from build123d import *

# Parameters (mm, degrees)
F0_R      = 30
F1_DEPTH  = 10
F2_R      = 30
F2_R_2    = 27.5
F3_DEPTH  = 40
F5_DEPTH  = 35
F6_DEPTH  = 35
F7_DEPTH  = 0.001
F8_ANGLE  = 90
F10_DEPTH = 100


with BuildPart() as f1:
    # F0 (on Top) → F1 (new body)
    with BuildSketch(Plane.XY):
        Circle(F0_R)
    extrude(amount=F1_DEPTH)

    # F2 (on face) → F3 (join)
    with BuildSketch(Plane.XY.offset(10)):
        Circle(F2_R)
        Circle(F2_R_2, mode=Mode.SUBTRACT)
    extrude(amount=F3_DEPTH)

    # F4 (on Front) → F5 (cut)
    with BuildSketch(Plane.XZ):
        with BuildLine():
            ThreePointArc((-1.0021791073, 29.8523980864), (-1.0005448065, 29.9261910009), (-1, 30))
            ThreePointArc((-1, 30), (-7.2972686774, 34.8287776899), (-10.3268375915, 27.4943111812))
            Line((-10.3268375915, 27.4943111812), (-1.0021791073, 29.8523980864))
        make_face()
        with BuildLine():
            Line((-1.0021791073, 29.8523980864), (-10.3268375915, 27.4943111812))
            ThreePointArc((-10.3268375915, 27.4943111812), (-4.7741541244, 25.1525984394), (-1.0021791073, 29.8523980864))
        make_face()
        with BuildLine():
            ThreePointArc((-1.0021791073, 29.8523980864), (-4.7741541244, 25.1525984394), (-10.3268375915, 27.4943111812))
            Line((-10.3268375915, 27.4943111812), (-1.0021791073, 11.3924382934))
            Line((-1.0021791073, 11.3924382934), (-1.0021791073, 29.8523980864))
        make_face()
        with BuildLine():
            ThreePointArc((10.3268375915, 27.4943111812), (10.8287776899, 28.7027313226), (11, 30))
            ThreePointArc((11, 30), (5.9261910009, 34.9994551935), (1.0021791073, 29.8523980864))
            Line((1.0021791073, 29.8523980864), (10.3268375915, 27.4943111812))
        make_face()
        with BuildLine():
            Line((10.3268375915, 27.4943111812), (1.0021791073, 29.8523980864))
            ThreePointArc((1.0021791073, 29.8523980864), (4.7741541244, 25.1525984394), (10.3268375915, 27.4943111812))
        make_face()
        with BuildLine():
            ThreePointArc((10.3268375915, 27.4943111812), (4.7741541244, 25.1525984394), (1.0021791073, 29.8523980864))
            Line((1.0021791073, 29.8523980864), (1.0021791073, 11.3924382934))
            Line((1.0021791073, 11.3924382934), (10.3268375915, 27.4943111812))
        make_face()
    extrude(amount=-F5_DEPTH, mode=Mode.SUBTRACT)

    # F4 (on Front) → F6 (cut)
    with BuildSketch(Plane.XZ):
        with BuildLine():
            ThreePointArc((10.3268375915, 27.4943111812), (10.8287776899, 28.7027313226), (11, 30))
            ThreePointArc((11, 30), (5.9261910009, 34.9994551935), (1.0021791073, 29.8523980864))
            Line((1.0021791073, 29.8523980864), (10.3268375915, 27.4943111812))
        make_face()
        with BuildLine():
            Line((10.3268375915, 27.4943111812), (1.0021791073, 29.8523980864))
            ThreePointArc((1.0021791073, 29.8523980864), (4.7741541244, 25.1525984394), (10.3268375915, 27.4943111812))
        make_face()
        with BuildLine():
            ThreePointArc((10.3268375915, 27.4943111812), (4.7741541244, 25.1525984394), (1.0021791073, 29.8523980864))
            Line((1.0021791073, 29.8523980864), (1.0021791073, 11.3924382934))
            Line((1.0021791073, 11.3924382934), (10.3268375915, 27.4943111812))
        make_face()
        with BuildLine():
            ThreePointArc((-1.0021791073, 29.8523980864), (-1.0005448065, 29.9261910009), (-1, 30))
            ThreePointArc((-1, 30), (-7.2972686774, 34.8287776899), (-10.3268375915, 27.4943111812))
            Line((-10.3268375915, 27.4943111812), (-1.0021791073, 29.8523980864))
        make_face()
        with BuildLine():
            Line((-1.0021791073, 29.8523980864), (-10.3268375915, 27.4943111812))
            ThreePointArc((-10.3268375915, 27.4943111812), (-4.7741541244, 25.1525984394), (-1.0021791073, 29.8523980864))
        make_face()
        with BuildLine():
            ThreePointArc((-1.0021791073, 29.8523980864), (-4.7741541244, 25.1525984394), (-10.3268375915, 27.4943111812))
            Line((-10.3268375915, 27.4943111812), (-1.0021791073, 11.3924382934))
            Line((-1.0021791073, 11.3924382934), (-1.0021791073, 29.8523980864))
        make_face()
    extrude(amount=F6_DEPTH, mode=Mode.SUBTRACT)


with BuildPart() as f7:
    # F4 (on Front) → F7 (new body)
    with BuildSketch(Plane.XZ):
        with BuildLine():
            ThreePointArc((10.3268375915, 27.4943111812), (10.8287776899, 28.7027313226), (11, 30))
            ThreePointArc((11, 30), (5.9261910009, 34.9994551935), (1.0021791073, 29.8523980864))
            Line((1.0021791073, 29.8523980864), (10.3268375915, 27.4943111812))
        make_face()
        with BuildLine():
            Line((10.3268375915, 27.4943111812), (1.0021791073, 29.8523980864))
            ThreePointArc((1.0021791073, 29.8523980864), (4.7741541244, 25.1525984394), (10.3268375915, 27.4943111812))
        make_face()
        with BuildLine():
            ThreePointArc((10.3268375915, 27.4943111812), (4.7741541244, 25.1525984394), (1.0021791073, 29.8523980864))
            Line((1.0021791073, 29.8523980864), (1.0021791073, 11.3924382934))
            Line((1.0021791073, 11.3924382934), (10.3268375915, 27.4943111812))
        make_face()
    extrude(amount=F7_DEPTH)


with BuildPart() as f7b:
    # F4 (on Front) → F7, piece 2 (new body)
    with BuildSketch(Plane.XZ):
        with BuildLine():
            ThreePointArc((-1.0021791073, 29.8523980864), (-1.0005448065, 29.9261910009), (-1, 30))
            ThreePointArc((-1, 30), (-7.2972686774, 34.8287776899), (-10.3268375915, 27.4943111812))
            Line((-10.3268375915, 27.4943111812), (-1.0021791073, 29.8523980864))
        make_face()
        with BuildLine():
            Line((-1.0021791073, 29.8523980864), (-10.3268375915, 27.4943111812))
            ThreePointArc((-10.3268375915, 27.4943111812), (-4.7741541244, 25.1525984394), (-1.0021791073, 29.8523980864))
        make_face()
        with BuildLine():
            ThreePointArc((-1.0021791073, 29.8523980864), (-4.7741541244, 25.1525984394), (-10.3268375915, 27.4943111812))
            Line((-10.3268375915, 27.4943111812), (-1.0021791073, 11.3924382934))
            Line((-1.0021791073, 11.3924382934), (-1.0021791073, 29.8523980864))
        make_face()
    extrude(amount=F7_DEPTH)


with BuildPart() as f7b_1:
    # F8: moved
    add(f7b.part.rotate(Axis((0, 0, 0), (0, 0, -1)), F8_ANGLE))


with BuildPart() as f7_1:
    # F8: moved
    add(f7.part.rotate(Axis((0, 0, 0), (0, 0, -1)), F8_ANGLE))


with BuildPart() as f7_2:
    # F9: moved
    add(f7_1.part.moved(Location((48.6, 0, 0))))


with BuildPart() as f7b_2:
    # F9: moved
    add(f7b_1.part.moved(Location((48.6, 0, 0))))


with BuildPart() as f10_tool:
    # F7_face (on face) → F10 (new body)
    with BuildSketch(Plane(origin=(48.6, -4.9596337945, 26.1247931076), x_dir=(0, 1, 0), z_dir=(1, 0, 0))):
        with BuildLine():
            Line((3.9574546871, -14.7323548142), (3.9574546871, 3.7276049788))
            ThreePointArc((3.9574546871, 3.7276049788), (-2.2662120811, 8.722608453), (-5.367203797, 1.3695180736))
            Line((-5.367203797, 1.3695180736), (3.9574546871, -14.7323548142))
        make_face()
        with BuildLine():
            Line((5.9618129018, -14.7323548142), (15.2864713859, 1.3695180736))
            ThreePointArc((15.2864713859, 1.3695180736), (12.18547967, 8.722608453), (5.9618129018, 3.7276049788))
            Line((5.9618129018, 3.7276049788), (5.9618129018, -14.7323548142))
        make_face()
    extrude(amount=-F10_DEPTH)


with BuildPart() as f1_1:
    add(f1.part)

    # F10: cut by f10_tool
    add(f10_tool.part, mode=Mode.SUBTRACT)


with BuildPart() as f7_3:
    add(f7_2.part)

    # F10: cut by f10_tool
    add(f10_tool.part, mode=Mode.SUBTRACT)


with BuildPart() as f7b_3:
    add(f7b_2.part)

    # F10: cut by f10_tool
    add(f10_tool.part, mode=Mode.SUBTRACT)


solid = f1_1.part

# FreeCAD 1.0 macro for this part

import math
import FreeCAD as App
import Part
import Sketcher
from FreeCAD import Vector
Q = App.Units.Quantity

doc = App.newDocument("Part")
body = doc.addObject("PartDesign::Body", "Body")

# Sketch on XY plane
sketch1 = body.newObject("Sketcher::SketchObject", "Sketch")
sketch1.AttachmentSupport = (doc.getObject("XY_Plane"), [""])
sketch1.MapMode = "FlatFace"
sketch1.addGeometry(Part.Circle(Vector(0, 0, 0), Vector(0, 0, 1), 30), False)
sketch1.addConstraint(Sketcher.Constraint("Coincident", 0, 3, -1, 1))
sketch1.addConstraint(Sketcher.Constraint("Diameter", 0, Q("60 mm")))
pad1 = body.newObject("PartDesign::Pad", "Pad")
pad1.Profile = sketch1
pad1.Length = 10

# Sketch on XY plane
sketch2 = body.newObject("Sketcher::SketchObject", "Sketch001")
sketch2.AttachmentSupport = (doc.getObject("XY_Plane"), [""])
sketch2.MapMode = "FlatFace"
sketch2.AttachmentOffset = App.Placement(Vector(0, 0, 10), App.Rotation())
sketch2.addGeometry(Part.Circle(Vector(0, 0, 0), Vector(0, 0, 1), 30), False)
sketch2.addGeometry(Part.Circle(Vector(0, 0, 0), Vector(0, 0, 1), 28), False)
sketch2.addConstraint(Sketcher.Constraint("Coincident", 0, 3, -1, 1))
sketch2.addConstraint(Sketcher.Constraint("Coincident", 1, 3, -1, 1))
sketch2.addConstraint(Sketcher.Constraint("Diameter", 0, Q("60 mm")))
sketch2.addConstraint(Sketcher.Constraint("Diameter", 1, Q("55 mm")))
pad2 = body.newObject("PartDesign::Pad", "Pad001")
pad2.Profile = sketch2
pad2.Length = 40

# Sketch on XZ plane
sketch3 = body.newObject("Sketcher::SketchObject", "Sketch002")
sketch3.AttachmentSupport = (doc.getObject("XZ_Plane"), [""])
sketch3.MapMode = "FlatFace"
sketch3.addGeometry(Part.ArcOfCircle(Part.Circle(Vector(-6, 30, 0), Vector(0, 0, 1), 5), math.radians(-1.69), math.radians(0)), False)
sketch3.addGeometry(Part.ArcOfCircle(Part.Circle(Vector(-6, 30, 0), Vector(0, 0, 1), 5), math.radians(0), math.radians(210)), False)
sketch3.addGeometry(Part.LineSegment(Vector(-10.33, 27.49, 0), Vector(-1, 11.39, 0)), False)
sketch3.addGeometry(Part.LineSegment(Vector(-1, 11.39, 0), Vector(-1, 29.85, 0)), False)
sketch3.addGeometry(Part.ArcOfCircle(Part.Circle(Vector(6, 30, 0), Vector(0, 0, 1), 5), math.radians(-30), math.radians(0)), False)
sketch3.addGeometry(Part.ArcOfCircle(Part.Circle(Vector(6, 30, 0), Vector(0, 0, 1), 5), math.radians(0), math.radians(182)), False)
sketch3.addGeometry(Part.LineSegment(Vector(1, 29.85, 0), Vector(1, 11.39, 0)), False)
sketch3.addGeometry(Part.LineSegment(Vector(1, 11.39, 0), Vector(10.33, 27.49, 0)), False)
sketch3.addConstraint(Sketcher.Constraint("Tangent", 0, 2, 1, 1))
sketch3.addConstraint(Sketcher.Constraint("Tangent", 1, 2, 2, 1))
sketch3.addConstraint(Sketcher.Constraint("Coincident", 2, 2, 3, 1))
sketch3.addConstraint(Sketcher.Constraint("Coincident", 3, 2, 0, 1))
sketch3.addConstraint(Sketcher.Constraint("Tangent", 4, 2, 5, 1))
sketch3.addConstraint(Sketcher.Constraint("Coincident", 5, 2, 6, 1))
sketch3.addConstraint(Sketcher.Constraint("Coincident", 6, 2, 7, 1))
sketch3.addConstraint(Sketcher.Constraint("Tangent", 7, 2, 4, 1))
sketch3.addConstraint(Sketcher.Constraint("Vertical", 3))
sketch3.addConstraint(Sketcher.Constraint("Vertical", 6))
sketch3.addConstraint(Sketcher.Constraint("Equal", 0, 1))
sketch3.addConstraint(Sketcher.Constraint("Equal", 1, 4))
sketch3.addConstraint(Sketcher.Constraint("Equal", 4, 5))
sketch3.addConstraint(Sketcher.Constraint("Symmetric", 0, 3, 4, 3, -2))
sketch3.addConstraint(Sketcher.Constraint("Symmetric", 2, 2, 6, 2, -2))
sketch3.addConstraint(Sketcher.Constraint("Horizontal", 5, 3, 0, 2))
sketch3.addConstraint(Sketcher.Constraint("Horizontal", 0, 2, 4, 2))
sketch3.addConstraint(Sketcher.Constraint("Radius", 0, Q("5 mm")))
sketch3.addConstraint(Sketcher.Constraint("DistanceX", 0, 3, -1, 1, Q("6 mm")))
sketch3.addConstraint(Sketcher.Constraint("DistanceY", -1, 1, 0, 3, Q("30 mm")))
sketch3.addConstraint(Sketcher.Constraint("DistanceY", 3, 1, 3, 2, Q("18.45996 mm")))
sketch3.addConstraint(Sketcher.Constraint("DistanceY", -1, 1, 3, 2, Q("29.852398 mm")))
pocket1 = body.newObject("PartDesign::Pocket", "Pocket")
pocket1.Profile = sketch3
pocket1.Length = 35

# Sketch on XZ plane
sketch4 = body.newObject("Sketcher::SketchObject", "Sketch003")
sketch4.AttachmentSupport = (doc.getObject("XZ_Plane"), [""])
sketch4.MapMode = "FlatFace"
sketch4.addGeometry(Part.ArcOfCircle(Part.Circle(Vector(6, 30, 0), Vector(0, 0, 1), 5), math.radians(-30), math.radians(0)), False)
sketch4.addGeometry(Part.ArcOfCircle(Part.Circle(Vector(6, 30, 0), Vector(0, 0, 1), 5), math.radians(0), math.radians(182)), False)
sketch4.addGeometry(Part.LineSegment(Vector(1, 29.85, 0), Vector(1, 11.39, 0)), False)
sketch4.addGeometry(Part.LineSegment(Vector(1, 11.39, 0), Vector(10.33, 27.49, 0)), False)
sketch4.addGeometry(Part.ArcOfCircle(Part.Circle(Vector(-6, 30, 0), Vector(0, 0, 1), 5), math.radians(-1.69), math.radians(0)), False)
sketch4.addGeometry(Part.ArcOfCircle(Part.Circle(Vector(-6, 30, 0), Vector(0, 0, 1), 5), math.radians(0), math.radians(210)), False)
sketch4.addGeometry(Part.LineSegment(Vector(-10.33, 27.49, 0), Vector(-1, 11.39, 0)), False)
sketch4.addGeometry(Part.LineSegment(Vector(-1, 11.39, 0), Vector(-1, 29.85, 0)), False)
sketch4.addConstraint(Sketcher.Constraint("Tangent", 0, 2, 1, 1))
sketch4.addConstraint(Sketcher.Constraint("Coincident", 1, 2, 2, 1))
sketch4.addConstraint(Sketcher.Constraint("Coincident", 2, 2, 3, 1))
sketch4.addConstraint(Sketcher.Constraint("Tangent", 3, 2, 0, 1))
sketch4.addConstraint(Sketcher.Constraint("Tangent", 4, 2, 5, 1))
sketch4.addConstraint(Sketcher.Constraint("Tangent", 5, 2, 6, 1))
sketch4.addConstraint(Sketcher.Constraint("Coincident", 6, 2, 7, 1))
sketch4.addConstraint(Sketcher.Constraint("Coincident", 7, 2, 4, 1))
sketch4.addConstraint(Sketcher.Constraint("Vertical", 2))
sketch4.addConstraint(Sketcher.Constraint("Vertical", 7))
sketch4.addConstraint(Sketcher.Constraint("Equal", 0, 1))
sketch4.addConstraint(Sketcher.Constraint("Equal", 1, 4))
sketch4.addConstraint(Sketcher.Constraint("Equal", 4, 5))
sketch4.addConstraint(Sketcher.Constraint("Symmetric", 0, 3, 4, 3, -2))
sketch4.addConstraint(Sketcher.Constraint("Symmetric", 2, 2, 6, 2, -2))
sketch4.addConstraint(Sketcher.Constraint("Horizontal", 5, 3, 0, 2))
sketch4.addConstraint(Sketcher.Constraint("Horizontal", 0, 2, 4, 2))
sketch4.addConstraint(Sketcher.Constraint("Radius", 0, Q("5 mm")))
sketch4.addConstraint(Sketcher.Constraint("DistanceX", -1, 1, 0, 3, Q("6 mm")))
sketch4.addConstraint(Sketcher.Constraint("DistanceY", -1, 1, 0, 3, Q("30 mm")))
sketch4.addConstraint(Sketcher.Constraint("DistanceY", 2, 2, 2, 1, Q("18.45996 mm")))
sketch4.addConstraint(Sketcher.Constraint("DistanceY", -1, 1, 1, 2, Q("29.852398 mm")))
pocket2 = body.newObject("PartDesign::Pocket", "Pocket001")
pocket2.Profile = sketch4
pocket2.Length = 35
pocket2.Reversed = True
body2 = doc.addObject("PartDesign::Body", "Body001")

# Sketch on XZ plane
sketch5 = body2.newObject("Sketcher::SketchObject", "Sketch004")
sketch5.AttachmentSupport = (doc.getObject("XZ_Plane001"), [""])
sketch5.MapMode = "FlatFace"
sketch5.addGeometry(Part.ArcOfCircle(Part.Circle(Vector(6, 30, 0), Vector(0, 0, 1), 5), math.radians(-30), math.radians(0)), False)
sketch5.addGeometry(Part.ArcOfCircle(Part.Circle(Vector(6, 30, 0), Vector(0, 0, 1), 5), math.radians(0), math.radians(182)), False)
sketch5.addGeometry(Part.LineSegment(Vector(1, 29.9, 0), Vector(1, 11.4, 0)), False)
sketch5.addGeometry(Part.LineSegment(Vector(1, 11.4, 0), Vector(10.3, 27.5, 0)), False)
sketch5.addConstraint(Sketcher.Constraint("Tangent", 0, 2, 1, 1))
sketch5.addConstraint(Sketcher.Constraint("Coincident", 1, 2, 2, 1))
sketch5.addConstraint(Sketcher.Constraint("Coincident", 2, 2, 3, 1))
sketch5.addConstraint(Sketcher.Constraint("Tangent", 3, 2, 0, 1))
sketch5.addConstraint(Sketcher.Constraint("Vertical", 2))
sketch5.addConstraint(Sketcher.Constraint("Equal", 0, 1))
sketch5.addConstraint(Sketcher.Constraint("Horizontal", 1, 3, 0, 2))
sketch5.addConstraint(Sketcher.Constraint("Radius", 0, Q("5 mm")))
sketch5.addConstraint(Sketcher.Constraint("DistanceX", -1, 1, 0, 3, Q("6 mm")))
sketch5.addConstraint(Sketcher.Constraint("DistanceY", -1, 1, 0, 3, Q("30 mm")))
sketch5.addConstraint(Sketcher.Constraint("DistanceY", 2, 2, 2, 1, Q("18.45996 mm")))
sketch5.addConstraint(Sketcher.Constraint("DistanceY", -1, 1, 1, 2, Q("29.852398 mm")))
pad3 = body2.newObject("PartDesign::Pad", "Pad002")
pad3.Profile = sketch5
pad3.Length = 0.001
body3 = doc.addObject("PartDesign::Body", "Body002")

# Sketch on XZ plane
sketch6 = body3.newObject("Sketcher::SketchObject", "Sketch005")
sketch6.AttachmentSupport = (doc.getObject("XZ_Plane002"), [""])
sketch6.MapMode = "FlatFace"
sketch6.addGeometry(Part.ArcOfCircle(Part.Circle(Vector(-6, 30, 0), Vector(0, 0, 1), 5), math.radians(-1.69), math.radians(0)), False)
sketch6.addGeometry(Part.ArcOfCircle(Part.Circle(Vector(-6, 30, 0), Vector(0, 0, 1), 5), math.radians(0), math.radians(210)), False)
sketch6.addGeometry(Part.LineSegment(Vector(-10.33, 27.49, 0), Vector(-1, 11.39, 0)), False)
sketch6.addGeometry(Part.LineSegment(Vector(-1, 11.39, 0), Vector(-1, 29.85, 0)), False)
sketch6.addConstraint(Sketcher.Constraint("Tangent", 0, 2, 1, 1))
sketch6.addConstraint(Sketcher.Constraint("Tangent", 1, 2, 2, 1))
sketch6.addConstraint(Sketcher.Constraint("Coincident", 2, 2, 3, 1))
sketch6.addConstraint(Sketcher.Constraint("Coincident", 3, 2, 0, 1))
sketch6.addConstraint(Sketcher.Constraint("Vertical", 3))
sketch6.addConstraint(Sketcher.Constraint("Equal", 0, 1))
sketch6.addConstraint(Sketcher.Constraint("Horizontal", 1, 3, 0, 2))
sketch6.addConstraint(Sketcher.Constraint("Radius", 0, Q("5 mm")))
sketch6.addConstraint(Sketcher.Constraint("DistanceX", 0, 3, -1, 1, Q("6 mm")))
sketch6.addConstraint(Sketcher.Constraint("DistanceY", -1, 1, 0, 3, Q("30 mm")))
sketch6.addConstraint(Sketcher.Constraint("DistanceY", 3, 1, 3, 2, Q("18.45996 mm")))
sketch6.addConstraint(Sketcher.Constraint("DistanceY", -1, 1, 3, 2, Q("29.852398 mm")))
pad4 = body3.newObject("PartDesign::Pad", "Pad003")
pad4.Profile = sketch6
pad4.Length = 0.001
body4 = doc.addObject("PartDesign::Body", "Body003")
doc.recompute()

body3.Placement = App.Placement(Vector(0, 0, 0), App.Rotation(Vector(0, 0, -1), 90))
boolean = body4.newObject("PartDesign::Boolean", "Boolean")
boolean.Type = "Fuse"
boolean.addObjects([body3])
body5 = doc.addObject("PartDesign::Body", "Body004")
doc.recompute()

body2.Placement = App.Placement(Vector(0, 0, 0), App.Rotation(Vector(0, 0, -1), 90))
boolean2 = body5.newObject("PartDesign::Boolean", "Boolean001")
boolean2.Type = "Fuse"
boolean2.addObjects([body2])
body6 = doc.addObject("PartDesign::Body", "Body005")
doc.recompute()

body5.Placement = App.Placement(Vector(48.6, 0, 0), App.Rotation(Vector(0, 0, 1), 0))
boolean3 = body6.newObject("PartDesign::Boolean", "Boolean002")
boolean3.Type = "Fuse"
boolean3.addObjects([body5])
body7 = doc.addObject("PartDesign::Body", "Body006")
doc.recompute()

body4.Placement = App.Placement(Vector(48.6, 0, 0), App.Rotation(Vector(0, 0, 1), 0))
boolean4 = body7.newObject("PartDesign::Boolean", "Boolean003")
boolean4.Type = "Fuse"
boolean4.addObjects([body4])
body8 = doc.addObject("PartDesign::Body", "Body007")
body8.AllowCompound = True

# Sketch on YZ plane
sketch7 = body8.newObject("Sketcher::SketchObject", "Sketch006")
sketch7.AttachmentSupport = (doc.getObject("YZ_Plane007"), [""])
sketch7.MapMode = "FlatFace"
sketch7.AttachmentOffset = App.Placement(Vector(0, 0, 48.6), App.Rotation())
sketch7.addGeometry(Part.LineSegment(Vector(-1, 11, 0), Vector(-1, 30, 0)), False)
sketch7.addGeometry(Part.ArcOfCircle(Part.Circle(Vector(-6, 30, 0), Vector(0, 0, 1), 5), math.radians(-2), math.radians(210)), False)
sketch7.addGeometry(Part.LineSegment(Vector(-10, 27, 0), Vector(-1, 11, 0)), False)
sketch7.addGeometry(Part.LineSegment(Vector(1, 11, 0), Vector(10, 27, 0)), False)
sketch7.addGeometry(Part.ArcOfCircle(Part.Circle(Vector(6, 30, 0), Vector(0, 0, 1), 5), math.radians(-30), math.radians(182)), False)
sketch7.addGeometry(Part.LineSegment(Vector(1, 30, 0), Vector(1, 11, 0)), False)
sketch7.addConstraint(Sketcher.Constraint("Coincident", 0, 2, 1, 1))
sketch7.addConstraint(Sketcher.Constraint("Tangent", 1, 2, 2, 1))
sketch7.addConstraint(Sketcher.Constraint("Coincident", 2, 2, 0, 1))
sketch7.addConstraint(Sketcher.Constraint("Tangent", 3, 2, 4, 1))
sketch7.addConstraint(Sketcher.Constraint("Coincident", 4, 2, 5, 1))
sketch7.addConstraint(Sketcher.Constraint("Coincident", 5, 2, 3, 1))
sketch7.addConstraint(Sketcher.Constraint("Vertical", 0))
sketch7.addConstraint(Sketcher.Constraint("Vertical", 5))
sketch7.addConstraint(Sketcher.Constraint("Equal", 1, 4))
sketch7.addConstraint(Sketcher.Constraint("Symmetric", 1, 3, 4, 3, -2))
sketch7.addConstraint(Sketcher.Constraint("Symmetric", 2, 2, 5, 2, -2))
sketch7.addConstraint(Sketcher.Constraint("Radius", 1, Q("5 mm")))
sketch7.addConstraint(Sketcher.Constraint("DistanceX", 1, 3, -1, 1, Q("6 mm")))
sketch7.addConstraint(Sketcher.Constraint("DistanceY", -1, 1, 1, 3, Q("30 mm")))
sketch7.addConstraint(Sketcher.Constraint("DistanceY", 0, 1, 0, 2, Q("18.45996 mm")))
sketch7.addConstraint(Sketcher.Constraint("DistanceY", -1, 1, 0, 2, Q("29.852398 mm")))
pad5 = body8.newObject("PartDesign::Pad", "Pad004")
pad5.Profile = sketch7
pad5.Length = 100
pad5.Reversed = True
doc.recompute()

body9 = doc.addObject("PartDesign::Body", "Body008")
body9.BaseFeature = body8
boolean5 = body.newObject("PartDesign::Boolean", "Boolean004")
boolean5.Type = "Cut"
boolean5.addObjects([body9])
doc.recompute()

body10 = doc.addObject("PartDesign::Body", "Body009")
body10.BaseFeature = body8
boolean6 = body6.newObject("PartDesign::Boolean", "Boolean005")
boolean6.Type = "Cut"
boolean6.addObjects([body10])
doc.recompute()

boolean7 = body7.newObject("PartDesign::Boolean", "Boolean006")
boolean7.Type = "Cut"
boolean7.addObjects([body8])

doc.recompute()
